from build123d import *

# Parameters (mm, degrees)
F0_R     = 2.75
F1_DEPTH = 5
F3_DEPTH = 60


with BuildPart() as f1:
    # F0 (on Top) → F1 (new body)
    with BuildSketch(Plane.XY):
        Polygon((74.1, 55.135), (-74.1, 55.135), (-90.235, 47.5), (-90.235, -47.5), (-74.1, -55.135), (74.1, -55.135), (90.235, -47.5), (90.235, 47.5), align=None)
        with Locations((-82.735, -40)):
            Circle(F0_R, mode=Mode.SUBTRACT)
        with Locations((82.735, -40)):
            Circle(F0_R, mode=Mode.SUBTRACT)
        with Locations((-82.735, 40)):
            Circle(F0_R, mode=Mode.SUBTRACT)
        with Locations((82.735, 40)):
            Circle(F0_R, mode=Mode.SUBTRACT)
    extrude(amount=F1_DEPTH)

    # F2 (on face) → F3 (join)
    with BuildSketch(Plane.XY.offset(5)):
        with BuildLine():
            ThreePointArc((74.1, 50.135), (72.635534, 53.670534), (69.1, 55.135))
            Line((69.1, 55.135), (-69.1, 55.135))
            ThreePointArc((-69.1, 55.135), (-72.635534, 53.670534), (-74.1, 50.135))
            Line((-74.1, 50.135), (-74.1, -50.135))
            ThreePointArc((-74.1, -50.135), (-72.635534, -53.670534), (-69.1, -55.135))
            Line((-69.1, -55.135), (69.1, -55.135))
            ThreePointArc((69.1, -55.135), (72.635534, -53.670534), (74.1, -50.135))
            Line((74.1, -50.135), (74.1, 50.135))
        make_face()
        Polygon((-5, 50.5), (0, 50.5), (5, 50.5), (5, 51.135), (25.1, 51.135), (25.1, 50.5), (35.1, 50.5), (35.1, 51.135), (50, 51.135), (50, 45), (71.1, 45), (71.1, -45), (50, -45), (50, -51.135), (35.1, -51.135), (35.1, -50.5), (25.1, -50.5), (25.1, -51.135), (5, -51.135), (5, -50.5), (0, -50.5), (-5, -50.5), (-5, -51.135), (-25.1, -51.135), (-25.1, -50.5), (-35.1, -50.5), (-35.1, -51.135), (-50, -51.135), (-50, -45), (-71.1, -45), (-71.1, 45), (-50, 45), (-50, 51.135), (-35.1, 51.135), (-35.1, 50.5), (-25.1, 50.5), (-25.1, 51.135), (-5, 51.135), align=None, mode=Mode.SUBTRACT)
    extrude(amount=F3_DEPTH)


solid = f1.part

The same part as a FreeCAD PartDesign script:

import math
import FreeCAD as App
import Part
import Sketcher
from FreeCAD import Vector
Q = App.Units.Quantity


def add_polygon(sketch, points):
    """Adds a closed chain of lines whose ends are joined by coincident constraints."""
    first, n = sketch.GeometryCount, len(points)
    for a, b in zip(points, points[1:] + points[:1]):
        sketch.addGeometry(Part.LineSegment(App.Vector(*a, 0), App.Vector(*b, 0)), False)
    for i in range(n):
        sketch.addConstraint(Sketcher.Constraint("Coincident", first + i, 2, first + (i + 1) % n, 1))

doc = App.newDocument("Part")
body = doc.addObject("PartDesign::Body", "Body")

# Sketch on XY plane
sketch1 = body.newObject("Sketcher::SketchObject", "Sketch")
sketch1.AttachmentSupport = (doc.getObject("XY_Plane"), [""])
sketch1.MapMode = "FlatFace"
add_polygon(sketch1, [(74.1, 55.1), (-74.1, 55.1), (-90.2, 47.5), (-90.2, -47.5), (-74.1, -55.1), (74.1, -55.1), (90.2, -47.5), (90.2, 47.5)])  # lines 0-7
sketch1.addGeometry(Part.Circle(Vector(-82.7, -40, 0), Vector(0, 0, 1), 2.8), False)  # 8
sketch1.addGeometry(Part.Circle(Vector(82.7, -40, 0), Vector(0, 0, 1), 2.8), False)  # 9
sketch1.addGeometry(Part.Circle(Vector(-82.7, 40, 0), Vector(0, 0, 1), 2.8), False)  # 10
sketch1.addGeometry(Part.Circle(Vector(82.7, 40, 0), Vector(0, 0, 1), 2.8), False)  # 11
sketch1.addConstraint(Sketcher.Constraint("Horizontal", 0))
sketch1.addConstraint(Sketcher.Constraint("Vertical", 2))
sketch1.addConstraint(Sketcher.Constraint("Horizontal", 4))
sketch1.addConstraint(Sketcher.Constraint("Vertical", 6))
sketch1.addConstraint(Sketcher.Constraint("Equal", 8, 9))
sketch1.addConstraint(Sketcher.Constraint("Equal", 9, 10))
sketch1.addConstraint(Sketcher.Constraint("Equal", 10, 11))
sketch1.addConstraint(Sketcher.Constraint("Symmetric", 9, 3, 10, 3, -1, 1))
sketch1.addConstraint(Sketcher.Constraint("Symmetric", 8, 3, 11, 3, -1, 1))
sketch1.addConstraint(Sketcher.Constraint("Symmetric", 0, 2, 4, 2, -1, 1))
sketch1.addConstraint(Sketcher.Constraint("Symmetric", 1, 2, 5, 2, -1, 1))
sketch1.addConstraint(Sketcher.Constraint("Symmetric", 8, 3, 9, 3, -2))
sketch1.addConstraint(Sketcher.Constraint("Parallel", 3, 7))
sketch1.addConstraint(Sketcher.Constraint("Horizontal", 2, 2, 5, 2))
sketch1.addConstraint(Sketcher.Constraint("Horizontal", 1, 2, 6, 2))
sketch1.addConstraint(Sketcher.Constraint("Vertical", 0, 2, 3, 2))
sketch1.addConstraint(Sketcher.Constraint("Diameter", 8, Q("5.5 mm")))
sketch1.addConstraint(Sketcher.Constraint("DistanceY", 2, 2, 2, 1, Q("95 mm")))
sketch1.addConstraint(Sketcher.Constraint("DistanceX", 0, 2, 0, 1, Q("148.2 mm")))
sketch1.addConstraint(Sketcher.Constraint("DistanceY", 8, 3, -1, 1, Q("40 mm")))
sketch1.addConstraint(Sketcher.Constraint("DistanceX", 1, 2, 10, 3, Q("7.5 mm")))
sketch1.addConstraint(Sketcher.Constraint("DistanceX", 8, 3, 9, 3, Q("165.47 mm")))
sketch1.addConstraint(Sketcher.Constraint("DistanceY", 3, 2, 0, 2, Q("110.27 mm")))
pad1 = body.newObject("PartDesign::Pad", "Pad")
pad1.Profile = sketch1
pad1.Length = 5

# Sketch on XY plane
sketch2 = body.newObject("Sketcher::SketchObject", "Sketch001")
sketch2.AttachmentSupport = (doc.getObject("XY_Plane"), [""])
sketch2.MapMode = "FlatFace"
sketch2.AttachmentOffset = App.Placement(Vector(0, 0, 5), App.Rotation())
sketch2.addGeometry(Part.ArcOfCircle(Part.Circle(Vector(69.1, 50.1, 0), Vector(0, 0, 1), 5), math.radians(0), math.radians(90)), False)  # 0
sketch2.addGeometry(Part.LineSegment(Vector(69.1, 55.1, 0), Vector(-69.1, 55.1, 0)), False)  # 1
sketch2.addGeometry(Part.ArcOfCircle(Part.Circle(Vector(-69.1, 50.1, 0), Vector(0, 0, 1), 5), math.radians(90), math.radians(180)), False)  # 2
sketch2.addGeometry(Part.LineSegment(Vector(-74.1, 50.1, 0), Vector(-74.1, -50.1, 0)), False)  # 3
sketch2.addGeometry(Part.ArcOfCircle(Part.Circle(Vector(-69.1, -50.1, 0), Vector(0, 0, 1), 5), math.radians(180), math.radians(270)), False)  # 4
sketch2.addGeometry(Part.LineSegment(Vector(-69.1, -55.1, 0), Vector(69.1, -55.1, 0)), False)  # 5
sketch2.addGeometry(Part.ArcOfCircle(Part.Circle(Vector(69.1, -50.1, 0), Vector(0, 0, 1), 5), math.radians(-90), math.radians(0)), False)  # 6
sketch2.addGeometry(Part.LineSegment(Vector(74.1, -50.1, 0), Vector(74.1, 50.1, 0)), False)  # 7
add_polygon(sketch2, [(-5, 51.1), (-5, 50.5), (5, 50.5), (5, 51.1), (25.1, 51.1), (25.1, 50.5), (35.1, 50.5), (35.1, 51.1), (50, 51.1), (50, 45), (71.1, 45), (71.1, -45), (50, -45), (50, -51.1), (35.1, -51.1), (35.1, -50.5), (25.1, -50.5), (25.1, -51.1), (5, -51.1), (5, -50.5), (-5, -50.5), (-5, -51.1), (-25.1, -51.1), (-25.1, -50.5), (-35.1, -50.5), (-35.1, -51.1), (-50, -51.1), (-50, -45), (-71.1, -45), (-71.1, 45), (-50, 45), (-50, 51.1), (-35.1, 51.1), (-35.1, 50.5), (-25.1, 50.5), (-25.1, 51.1)])  # lines 8-43
sketch2.addConstraint(Sketcher.Constraint("Tangent", 0, 2, 1, 1))
sketch2.addConstraint(Sketcher.Constraint("Tangent", 1, 2, 2, 1))
sketch2.addConstraint(Sketcher.Constraint("Tangent", 2, 2, 3, 1))
sketch2.addConstraint(Sketcher.Constraint("Tangent", 3, 2, 4, 1))
sketch2.addConstraint(Sketcher.Constraint("Tangent", 4, 2, 5, 1))
sketch2.addConstraint(Sketcher.Constraint("Tangent", 5, 2, 6, 1))
sketch2.addConstraint(Sketcher.Constraint("Tangent", 6, 2, 7, 1))
sketch2.addConstraint(Sketcher.Constraint("Tangent", 7, 2, 0, 1))
sketch2.addConstraint(Sketcher.Constraint("Horizontal", 1))
sketch2.addConstraint(Sketcher.Constraint("Vertical", 3))
sketch2.addConstraint(Sketcher.Constraint("Horizontal", 5))
sketch2.addConstraint(Sketcher.Constraint("Vertical", 7))
sketch2.addConstraint(Sketcher.Constraint("Vertical", 8))
sketch2.addConstraint(Sketcher.Constraint("Horizontal", 9))
sketch2.addConstraint(Sketcher.Constraint("Vertical", 10))
sketch2.addConstraint(Sketcher.Constraint("Horizontal", 11))
sketch2.addConstraint(Sketcher.Constraint("Vertical", 12))
sketch2.addConstraint(Sketcher.Constraint("Horizontal", 13))
sketch2.addConstraint(Sketcher.Constraint("Vertical", 14))
sketch2.addConstraint(Sketcher.Constraint("Horizontal", 15))
sketch2.addConstraint(Sketcher.Constraint("Vertical", 16))
sketch2.addConstraint(Sketcher.Constraint("Horizontal", 17))
sketch2.addConstraint(Sketcher.Constraint("Vertical", 18))
sketch2.addConstraint(Sketcher.Constraint("Horizontal", 19))
sketch2.addConstraint(Sketcher.Constraint("Vertical", 20))
sketch2.addConstraint(Sketcher.Constraint("Horizontal", 21))
sketch2.addConstraint(Sketcher.Constraint("Vertical", 22))
sketch2.addConstraint(Sketcher.Constraint("Horizontal", 23))
sketch2.addConstraint(Sketcher.Constraint("Vertical", 24))
sketch2.addConstraint(Sketcher.Constraint("Horizontal", 25))
sketch2.addConstraint(Sketcher.Constraint("Vertical", 26))
sketch2.addConstraint(Sketcher.Constraint("Horizontal", 27))
sketch2.addConstraint(Sketcher.Constraint("Vertical", 28))
sketch2.addConstraint(Sketcher.Constraint("Horizontal", 29))
sketch2.addConstraint(Sketcher.Constraint("Vertical", 30))
sketch2.addConstraint(Sketcher.Constraint("Horizontal", 31))
sketch2.addConstraint(Sketcher.Constraint("Vertical", 32))
sketch2.addConstraint(Sketcher.Constraint("Horizontal", 33))
sketch2.addConstraint(Sketcher.Constraint("Vertical", 34))
sketch2.addConstraint(Sketcher.Constraint("Horizontal", 35))
sketch2.addConstraint(Sketcher.Constraint("Vertical", 36))
sketch2.addConstraint(Sketcher.Constraint("Horizontal", 37))
sketch2.addConstraint(Sketcher.Constraint("Vertical", 38))
sketch2.addConstraint(Sketcher.Constraint("Horizontal", 39))
sketch2.addConstraint(Sketcher.Constraint("Vertical", 40))
sketch2.addConstraint(Sketcher.Constraint("Horizontal", 41))
sketch2.addConstraint(Sketcher.Constraint("Vertical", 42))
sketch2.addConstraint(Sketcher.Constraint("Horizontal", 43))
sketch2.addConstraint(Sketcher.Constraint("Equal", 0, 2))
sketch2.addConstraint(Sketcher.Constraint("Equal", 2, 4))
sketch2.addConstraint(Sketcher.Constraint("Equal", 4, 6))
sketch2.addConstraint(Sketcher.Constraint("Symmetric", 0, 3, 4, 3, -1, 1))
sketch2.addConstraint(Sketcher.Constraint("Symmetric", 8, 2, 26, 2, -1, 1))
sketch2.addConstraint(Sketcher.Constraint("Symmetric", 10, 2, 28, 2, -1, 1))
sketch2.addConstraint(Sketcher.Constraint("Symmetric", 12, 2, 30, 2, -1, 1))
sketch2.addConstraint(Sketcher.Constraint("Symmetric", 14, 2, 32, 2, -1, 1))
sketch2.addConstraint(Sketcher.Constraint("Symmetric", 16, 2, 34, 2, -1, 1))
sketch2.addConstraint(Sketcher.Constraint("Symmetric", 18, 2, 36, 2, -1, 1))
sketch2.addConstraint(Sketcher.Constraint("Symmetric", 20, 2, 38, 2, -1, 1))
sketch2.addConstraint(Sketcher.Constraint("Symmetric", 22, 2, 40, 2, -1, 1))
sketch2.addConstraint(Sketcher.Constraint("Symmetric", 24, 2, 42, 2, -1, 1))
sketch2.addConstraint(Sketcher.Constraint("Symmetric", 25, 2, 28, 2, -2))
sketch2.addConstraint(Sketcher.Constraint("Symmetric", 23, 2, 30, 2, -2))
sketch2.addConstraint(Sketcher.Constraint("Symmetric", 21, 2, 32, 2, -2))
sketch2.addConstraint(Sketcher.Constraint("Symmetric", 19, 2, 34, 2, -2))
sketch2.addConstraint(Sketcher.Constraint("Horizontal", 9, 2, 12, 2))
sketch2.addConstraint(Sketcher.Constraint("Horizontal", 11, 2, 14, 2))
sketch2.addConstraint(Sketcher.Constraint("Equal", 9, 13))
sketch2.addConstraint(Sketcher.Constraint("Radius", 0, Q("5 mm")))
sketch2.addConstraint(Sketcher.Constraint("DistanceX", 9, 1, 9, 2, Q("10 mm")))
sketch2.addConstraint(Sketcher.Constraint("DistanceY", 18, 2, 18, 1, Q("90 mm")))
sketch2.addConstraint(Sketcher.Constraint("DistanceX", 1, 2, 1, 1, Q("138.2 mm")))
sketch2.addConstraint(Sketcher.Constraint("DistanceX", 11, 1, 11, 2, Q("20.1 mm")))
sketch2.addConstraint(Sketcher.Constraint("DistanceX", 15, 1, 15, 2, Q("14.9 mm")))
sketch2.addConstraint(Sketcher.Constraint("DistanceX", 17, 1, 17, 2, Q("21.1 mm")))
sketch2.addConstraint(Sketcher.Constraint("DistanceY", 0, 3, 10, 2, Q("1 mm")))
sketch2.addConstraint(Sketcher.Constraint("DistanceY", 3, 2, 3, 1, Q("100.27 mm")))
sketch2.addConstraint(Sketcher.Constraint("DistanceY", -1, 1, 8, 2, Q("50.5 mm")))
pad2 = body.newObject("PartDesign::Pad", "Pad001")
pad2.Profile = sketch2
pad2.Length = 60

doc.recompute()
